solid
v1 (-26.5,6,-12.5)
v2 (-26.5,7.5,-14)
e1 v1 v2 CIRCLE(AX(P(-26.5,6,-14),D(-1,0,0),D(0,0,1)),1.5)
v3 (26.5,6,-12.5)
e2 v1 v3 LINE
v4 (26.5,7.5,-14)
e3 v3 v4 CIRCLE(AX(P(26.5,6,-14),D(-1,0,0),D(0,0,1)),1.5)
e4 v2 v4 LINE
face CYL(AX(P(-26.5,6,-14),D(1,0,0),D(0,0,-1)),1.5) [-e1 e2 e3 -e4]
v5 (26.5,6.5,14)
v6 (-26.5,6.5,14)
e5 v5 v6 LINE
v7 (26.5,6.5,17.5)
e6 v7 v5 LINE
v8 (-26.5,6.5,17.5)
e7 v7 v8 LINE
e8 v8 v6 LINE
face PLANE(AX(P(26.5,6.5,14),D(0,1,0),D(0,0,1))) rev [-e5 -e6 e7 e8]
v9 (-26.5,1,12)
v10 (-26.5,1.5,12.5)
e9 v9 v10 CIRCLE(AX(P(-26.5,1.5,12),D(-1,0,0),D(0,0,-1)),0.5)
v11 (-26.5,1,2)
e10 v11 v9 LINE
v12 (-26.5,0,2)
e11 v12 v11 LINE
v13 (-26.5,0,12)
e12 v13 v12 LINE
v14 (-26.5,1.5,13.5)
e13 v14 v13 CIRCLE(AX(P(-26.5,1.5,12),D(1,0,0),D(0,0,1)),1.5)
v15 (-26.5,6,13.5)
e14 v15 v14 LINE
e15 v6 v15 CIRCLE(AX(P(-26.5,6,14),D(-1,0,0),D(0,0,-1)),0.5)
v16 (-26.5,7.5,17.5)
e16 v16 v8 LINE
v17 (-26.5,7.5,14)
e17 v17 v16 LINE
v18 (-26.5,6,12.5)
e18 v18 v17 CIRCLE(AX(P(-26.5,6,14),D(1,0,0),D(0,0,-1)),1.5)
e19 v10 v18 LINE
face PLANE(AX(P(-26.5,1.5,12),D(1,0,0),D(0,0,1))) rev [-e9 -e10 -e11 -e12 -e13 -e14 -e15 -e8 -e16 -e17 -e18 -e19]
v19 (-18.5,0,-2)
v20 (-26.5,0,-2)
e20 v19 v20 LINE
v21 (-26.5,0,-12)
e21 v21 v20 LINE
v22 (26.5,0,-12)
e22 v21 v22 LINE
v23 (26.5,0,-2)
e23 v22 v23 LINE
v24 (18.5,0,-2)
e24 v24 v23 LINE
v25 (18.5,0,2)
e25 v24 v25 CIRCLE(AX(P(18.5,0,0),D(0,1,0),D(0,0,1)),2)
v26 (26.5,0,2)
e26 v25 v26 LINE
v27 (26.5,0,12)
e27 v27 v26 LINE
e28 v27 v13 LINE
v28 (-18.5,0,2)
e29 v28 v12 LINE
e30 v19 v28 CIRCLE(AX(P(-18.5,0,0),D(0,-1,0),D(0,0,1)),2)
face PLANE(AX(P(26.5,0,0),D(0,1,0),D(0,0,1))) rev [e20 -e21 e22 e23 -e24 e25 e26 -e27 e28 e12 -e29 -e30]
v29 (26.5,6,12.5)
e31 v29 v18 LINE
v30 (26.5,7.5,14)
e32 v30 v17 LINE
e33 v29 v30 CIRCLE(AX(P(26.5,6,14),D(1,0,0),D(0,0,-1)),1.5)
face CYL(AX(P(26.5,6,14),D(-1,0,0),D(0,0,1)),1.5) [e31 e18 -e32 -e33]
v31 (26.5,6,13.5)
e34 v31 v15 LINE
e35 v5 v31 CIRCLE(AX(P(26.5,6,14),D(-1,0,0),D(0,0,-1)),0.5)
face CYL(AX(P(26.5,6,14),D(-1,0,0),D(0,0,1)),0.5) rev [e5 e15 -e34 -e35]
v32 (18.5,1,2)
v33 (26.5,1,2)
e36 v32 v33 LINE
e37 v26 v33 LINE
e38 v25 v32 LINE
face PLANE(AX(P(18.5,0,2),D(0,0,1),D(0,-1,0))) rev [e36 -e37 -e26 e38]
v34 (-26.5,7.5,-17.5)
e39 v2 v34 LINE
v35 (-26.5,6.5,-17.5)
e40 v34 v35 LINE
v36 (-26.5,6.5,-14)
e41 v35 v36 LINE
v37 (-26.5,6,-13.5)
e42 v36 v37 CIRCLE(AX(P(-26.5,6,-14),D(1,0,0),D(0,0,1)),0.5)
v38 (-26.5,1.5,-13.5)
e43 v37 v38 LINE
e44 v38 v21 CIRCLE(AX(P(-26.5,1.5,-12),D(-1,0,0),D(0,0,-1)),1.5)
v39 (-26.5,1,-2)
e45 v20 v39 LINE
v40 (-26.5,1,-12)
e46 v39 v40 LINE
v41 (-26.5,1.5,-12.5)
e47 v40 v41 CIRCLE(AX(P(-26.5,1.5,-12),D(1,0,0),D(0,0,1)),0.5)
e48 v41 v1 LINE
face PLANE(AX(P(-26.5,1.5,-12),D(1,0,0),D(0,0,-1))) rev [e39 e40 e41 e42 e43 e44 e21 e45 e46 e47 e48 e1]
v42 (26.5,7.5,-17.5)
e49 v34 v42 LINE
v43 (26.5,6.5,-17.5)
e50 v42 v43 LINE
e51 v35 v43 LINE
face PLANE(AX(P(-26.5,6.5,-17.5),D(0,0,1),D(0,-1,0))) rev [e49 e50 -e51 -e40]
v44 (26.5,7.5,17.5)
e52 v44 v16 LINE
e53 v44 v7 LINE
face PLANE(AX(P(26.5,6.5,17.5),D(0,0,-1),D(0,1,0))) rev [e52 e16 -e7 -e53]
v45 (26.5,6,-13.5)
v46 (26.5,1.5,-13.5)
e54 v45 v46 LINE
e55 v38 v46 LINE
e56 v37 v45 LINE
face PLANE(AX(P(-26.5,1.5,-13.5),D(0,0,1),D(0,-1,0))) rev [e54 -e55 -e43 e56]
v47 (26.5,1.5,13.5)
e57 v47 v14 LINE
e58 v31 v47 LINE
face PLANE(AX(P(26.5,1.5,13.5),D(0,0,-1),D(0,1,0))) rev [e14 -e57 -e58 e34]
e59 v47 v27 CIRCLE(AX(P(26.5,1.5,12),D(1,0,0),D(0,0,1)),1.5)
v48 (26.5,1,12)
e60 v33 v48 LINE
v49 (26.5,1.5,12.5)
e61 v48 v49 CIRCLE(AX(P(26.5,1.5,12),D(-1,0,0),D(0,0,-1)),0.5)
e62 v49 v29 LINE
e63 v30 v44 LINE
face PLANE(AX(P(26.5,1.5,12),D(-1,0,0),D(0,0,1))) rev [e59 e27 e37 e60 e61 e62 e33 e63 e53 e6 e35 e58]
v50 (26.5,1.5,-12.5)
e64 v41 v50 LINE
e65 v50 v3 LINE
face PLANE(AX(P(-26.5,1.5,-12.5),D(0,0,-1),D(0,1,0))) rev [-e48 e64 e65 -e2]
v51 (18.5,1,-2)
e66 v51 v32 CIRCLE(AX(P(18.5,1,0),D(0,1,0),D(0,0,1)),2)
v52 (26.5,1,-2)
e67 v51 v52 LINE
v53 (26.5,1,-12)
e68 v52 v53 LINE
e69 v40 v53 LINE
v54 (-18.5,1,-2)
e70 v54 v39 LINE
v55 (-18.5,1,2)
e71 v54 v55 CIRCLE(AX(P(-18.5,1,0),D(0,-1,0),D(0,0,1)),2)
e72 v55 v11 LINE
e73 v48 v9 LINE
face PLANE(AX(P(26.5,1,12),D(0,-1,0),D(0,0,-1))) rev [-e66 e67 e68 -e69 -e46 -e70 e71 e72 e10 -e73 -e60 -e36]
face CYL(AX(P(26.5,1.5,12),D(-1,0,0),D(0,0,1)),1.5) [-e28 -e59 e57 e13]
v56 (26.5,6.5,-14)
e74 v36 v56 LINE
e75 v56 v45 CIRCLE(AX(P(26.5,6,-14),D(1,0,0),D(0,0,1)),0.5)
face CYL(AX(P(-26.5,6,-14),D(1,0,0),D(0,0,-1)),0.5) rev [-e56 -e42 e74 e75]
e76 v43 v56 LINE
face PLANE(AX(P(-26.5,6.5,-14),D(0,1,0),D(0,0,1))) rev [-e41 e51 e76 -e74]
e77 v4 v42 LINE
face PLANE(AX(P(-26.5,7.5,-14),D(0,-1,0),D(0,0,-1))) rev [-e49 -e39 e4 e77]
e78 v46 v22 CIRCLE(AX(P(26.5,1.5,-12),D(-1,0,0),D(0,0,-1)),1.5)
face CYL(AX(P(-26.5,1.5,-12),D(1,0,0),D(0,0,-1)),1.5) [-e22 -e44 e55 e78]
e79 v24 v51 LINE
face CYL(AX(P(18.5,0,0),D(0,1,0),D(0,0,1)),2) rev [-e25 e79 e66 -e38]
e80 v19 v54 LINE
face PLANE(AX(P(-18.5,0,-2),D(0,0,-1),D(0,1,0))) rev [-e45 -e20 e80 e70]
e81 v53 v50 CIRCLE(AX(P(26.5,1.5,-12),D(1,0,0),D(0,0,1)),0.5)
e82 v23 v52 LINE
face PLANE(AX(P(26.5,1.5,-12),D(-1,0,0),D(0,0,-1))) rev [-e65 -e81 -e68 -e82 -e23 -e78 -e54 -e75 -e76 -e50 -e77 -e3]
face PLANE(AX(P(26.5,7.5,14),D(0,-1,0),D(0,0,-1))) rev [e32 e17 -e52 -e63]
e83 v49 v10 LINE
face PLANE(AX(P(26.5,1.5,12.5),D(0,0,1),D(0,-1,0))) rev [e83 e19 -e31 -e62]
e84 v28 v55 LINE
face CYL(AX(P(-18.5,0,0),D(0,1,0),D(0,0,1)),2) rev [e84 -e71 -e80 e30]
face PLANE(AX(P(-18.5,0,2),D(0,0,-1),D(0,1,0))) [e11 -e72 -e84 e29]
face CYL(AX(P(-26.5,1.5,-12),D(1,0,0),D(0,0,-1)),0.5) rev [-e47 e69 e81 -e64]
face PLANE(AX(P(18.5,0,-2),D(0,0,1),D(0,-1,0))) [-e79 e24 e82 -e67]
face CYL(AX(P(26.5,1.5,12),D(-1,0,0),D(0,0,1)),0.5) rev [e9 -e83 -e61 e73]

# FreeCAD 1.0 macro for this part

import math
import FreeCAD as App
import Part
import Sketcher
from FreeCAD import Vector
Q = App.Units.Quantity

doc = App.newDocument("Part")
body = doc.addObject("PartDesign::Body", "Body")

sketch1 = body.newObject("Sketcher::SketchObject", "Sketch")
sketch1.AttachmentSupport = (doc.getObject("YZ_Plane"), [""])
sketch1.MapMode = "FlatFace"
sketch1.addGeometry([
    Part.LineSegment(Vector(0, 12, 0), Vector(0, 0, 0)),
    Part.LineSegment(Vector(0, 0, 0), Vector(1, 0, 0)),
    Part.LineSegment(Vector(1, 0, 0), Vector(1, 12, 0)),
    Part.ArcOfCircle(Part.Circle(Vector(1.5, 12, 0), Vector(0, 0, 1), 0.5), math.radians(90), math.radians(180)),
    Part.LineSegment(Vector(1.5, 12.5, 0), Vector(6, 12.5, 0)),
    Part.ArcOfCircle(Part.Circle(Vector(6, 14, 0), Vector(0, 0, 1), 1.5), math.radians(-90), math.radians(0)),
    Part.LineSegment(Vector(7.5, 14, 0), Vector(7.5, 17.5, 0)),
    Part.LineSegment(Vector(7.5, 17.5, 0), Vector(6.5, 17.5, 0)),
    Part.LineSegment(Vector(6.5, 17.5, 0), Vector(6.5, 14, 0)),
    Part.ArcOfCircle(Part.Circle(Vector(6, 14, 0), Vector(0, 0, 1), 0.5), math.radians(-90), math.radians(0)),
    Part.LineSegment(Vector(6, 13.5, 0), Vector(1.5, 13.5, 0)),
    Part.ArcOfCircle(Part.Circle(Vector(1.5, 12, 0), Vector(0, 0, 1), 1.5), math.radians(90), math.radians(180)),
], False)
sketch1.addConstraint([
    Sketcher.Constraint("Coincident", 0, 2, 1, 1),
    Sketcher.Constraint("Coincident", 1, 2, 2, 1),
    Sketcher.Constraint("Tangent", 2, 2, 3, 2),
    Sketcher.Constraint("Tangent", 3, 1, 4, 1),
    Sketcher.Constraint("Tangent", 4, 2, 5, 1),
    Sketcher.Constraint("Tangent", 5, 2, 6, 1),
    Sketcher.Constraint("Coincident", 6, 2, 7, 1),
    Sketcher.Constraint("Coincident", 7, 2, 8, 1),
    Sketcher.Constraint("Tangent", 8, 2, 9, 2),
    Sketcher.Constraint("Tangent", 9, 1, 10, 1),
    Sketcher.Constraint("Tangent", 10, 2, 11, 1),
    Sketcher.Constraint("Tangent", 11, 2, 0, 1),
    Sketcher.Constraint("Vertical", 0),
    Sketcher.Constraint("Horizontal", 1),
    Sketcher.Constraint("Vertical", 2),
    Sketcher.Constraint("Horizontal", 4),
    Sketcher.Constraint("Vertical", 6),
    Sketcher.Constraint("Horizontal", 7),
    Sketcher.Constraint("Vertical", 8),
    Sketcher.Constraint("Horizontal", 10),
    Sketcher.Constraint("Coincident", 0, 2, -1, 1),
    Sketcher.Constraint("Coincident", 9, 3, 5, 3),
    Sketcher.Constraint("Coincident", 11, 3, 3, 3),
    Sketcher.Constraint("Equal", 3, 9),
    Sketcher.Constraint("Radius", 3, Q("0.5 mm")),
    Sketcher.Constraint("Radius", 5, Q("1.5 mm")),
    Sketcher.Constraint("DistanceY", 0, 2, 0, 1, Q("12 mm")),
    Sketcher.Constraint("DistanceX", 4, 1, 4, 2, Q("4.5 mm")),
    Sketcher.Constraint("DistanceY", 6, 1, 6, 2, Q("3.5 mm")),
])
pad1 = body.newObject("PartDesign::Pad", "Pad")
pad1.Profile = sketch1
pad1.Length = 26.5

sketch2 = body.newObject("Sketcher::SketchObject", "Sketch001")
sketch2.AttachmentSupport = (doc.getObject("XZ_Plane"), [""])
sketch2.MapMode = "FlatFace"
sketch2.AttachmentOffset = App.Placement(Vector(0, 0, -1), App.Rotation())
sketch2.addGeometry([
    Part.LineSegment(Vector(26.5, 0, 0), Vector(16.5, 0, 0)),
    Part.ArcOfCircle(Part.Circle(Vector(18.5, 0, 0), Vector(0, 0, 1), 2), math.radians(90), math.radians(180)),
    Part.LineSegment(Vector(18.5, 2, 0), Vector(26.5, 2, 0)),
    Part.LineSegment(Vector(26.5, 2, 0), Vector(26.5, 0, 0)),
], False)
sketch2.addConstraint([
    Sketcher.Constraint("Coincident", 0, 2, 1, 2),
    Sketcher.Constraint("Tangent", 1, 1, 2, 1),
    Sketcher.Constraint("Coincident", 2, 2, 3, 1),
    Sketcher.Constraint("Coincident", 3, 2, 0, 1),
    Sketcher.Constraint("Horizontal", 0),
    Sketcher.Constraint("Horizontal", 2),
    Sketcher.Constraint("Vertical", 3),
    Sketcher.Constraint("PointOnObject", 1, 3, -1),
    Sketcher.Constraint("PointOnObject", 0, 2, -1),
    Sketcher.Constraint("Radius", 1, Q("2 mm")),
    Sketcher.Constraint("DistanceX", 0, 2, 0, 1, Q("10 mm")),
    Sketcher.Constraint("DistanceX", -1, 1, 1, 3, Q("18.5 mm")),
])
pocket1 = body.newObject("PartDesign::Pocket", "Pocket")
pocket1.Profile = sketch2
pocket1.Type = "ThroughAll"
pocket1.Reversed = True
doc.recompute()

mirrored = body.newObject("PartDesign::Mirrored", "Mirrored")
mirrored.Originals = [pad1, pocket1]
mirrored.MirrorPlane = (doc.getObject("YZ_Plane"), [""])
body.Tip = mirrored
doc.recompute()

mirrored2 = body.newObject("PartDesign::Mirrored", "Mirrored001")
mirrored2.Originals = [pad1, pocket1]
mirrored2.MirrorPlane = (doc.getObject("XY_Plane"), [""])
body.Tip = mirrored2

sketch3 = body.newObject("Sketcher::SketchObject", "Sketch002")
sketch3.AttachmentSupport = (doc.getObject("YZ_Plane"), [""])
sketch3.MapMode = "FlatFace"
sketch3.addGeometry([
    Part.LineSegment(Vector(0, -12, 0), Vector(0, 0, 0)),
    Part.LineSegment(Vector(0, 0, 0), Vector(1, 0, 0)),
    Part.LineSegment(Vector(1, 0, 0), Vector(1, -12, 0)),
    Part.ArcOfCircle(Part.Circle(Vector(1.5, -12, 0), Vector(0, 0, 1), 0.5), math.radians(180), math.radians(270)),
    Part.LineSegment(Vector(1.5, -12.5, 0), Vector(6, -12.5, 0)),
    Part.ArcOfCircle(Part.Circle(Vector(6, -14, 0), Vector(0, 0, 1), 1.5), math.radians(0), math.radians(90)),
    Part.LineSegment(Vector(7.5, -14, 0), Vector(7.5, -17.5, 0)),
    Part.LineSegment(Vector(7.5, -17.5, 0), Vector(6.5, -17.5, 0)),
    Part.LineSegment(Vector(6.5, -17.5, 0), Vector(6.5, -14, 0)),
    Part.ArcOfCircle(Part.Circle(Vector(6, -14, 0), Vector(0, 0, 1), 0.5), math.radians(0), math.radians(90)),
    Part.LineSegment(Vector(6, -13.5, 0), Vector(1.5, -13.5, 0)),
    Part.ArcOfCircle(Part.Circle(Vector(1.5, -12, 0), Vector(0, 0, 1), 1.5), math.radians(180), math.radians(270)),
], False)
sketch3.addConstraint([
    Sketcher.Constraint("Coincident", 0, 2, 1, 1),
    Sketcher.Constraint("Coincident", 1, 2, 2, 1),
    Sketcher.Constraint("Tangent", 2, 2, 3, 1),
    Sketcher.Constraint("Tangent", 3, 2, 4, 1),
    Sketcher.Constraint("Tangent", 4, 2, 5, 2),
    Sketcher.Constraint("Tangent", 5, 1, 6, 1),
    Sketcher.Constraint("Coincident", 6, 2, 7, 1),
    Sketcher.Constraint("Coincident", 7, 2, 8, 1),
    Sketcher.Constraint("Tangent", 8, 2, 9, 1),
    Sketcher.Constraint("Tangent", 9, 2, 10, 1),
    Sketcher.Constraint("Tangent", 10, 2, 11, 2),
    Sketcher.Constraint("Tangent", 11, 1, 0, 1),
    Sketcher.Constraint("Vertical", 0),
    Sketcher.Constraint("Horizontal", 1),
    Sketcher.Constraint("Vertical", 2),
    Sketcher.Constraint("Horizontal", 4),
    Sketcher.Constraint("Vertical", 6),
    Sketcher.Constraint("Horizontal", 7),
    Sketcher.Constraint("Vertical", 8),
    Sketcher.Constraint("Horizontal", 10),
    Sketcher.Constraint("Coincident", 0, 2, -1, 1),
    Sketcher.Constraint("Coincident", 9, 3, 5, 3),
    Sketcher.Constraint("Coincident", 11, 3, 3, 3),
    Sketcher.Constraint("Equal", 3, 9),
    Sketcher.Constraint("Radius", 3, Q("0.5 mm")),
    Sketcher.Constraint("Radius", 5, Q("1.5 mm")),
    Sketcher.Constraint("DistanceY", 0, 1, 0, 2, Q("12 mm")),
    Sketcher.Constraint("DistanceX", 4, 1, 4, 2, Q("4.5 mm")),
    Sketcher.Constraint("DistanceY", 6, 2, 6, 1, Q("3.5 mm")),
])
pad2 = body.newObject("PartDesign::Pad", "Pad001")
pad2.Profile = sketch3
pad2.Length = 26.5
pad2.Reversed = True

sketch4 = body.newObject("Sketcher::SketchObject", "Sketch003")
sketch4.AttachmentSupport = (doc.getObject("XZ_Plane"), [""])
sketch4.MapMode = "FlatFace"
sketch4.AttachmentOffset = App.Placement(Vector(0, 0, -1), App.Rotation())
sketch4.addGeometry([
    Part.LineSegment(Vector(-26.5, 0, 0), Vector(-16.5, 0, 0)),
    Part.ArcOfCircle(Part.Circle(Vector(-18.5, 0, 0), Vector(0, 0, 1), 2), math.radians(-90), math.radians(0)),
    Part.LineSegment(Vector(-18.5, -2, 0), Vector(-26.5, -2, 0)),
    Part.LineSegment(Vector(-26.5, -2, 0), Vector(-26.5, 0, 0)),
], False)
sketch4.addConstraint([
    Sketcher.Constraint("Coincident", 0, 2, 1, 2),
    Sketcher.Constraint("Tangent", 1, 1, 2, 1),
    Sketcher.Constraint("Coincident", 2, 2, 3, 1),
    Sketcher.Constraint("Coincident", 3, 2, 0, 1),
    Sketcher.Constraint("Horizontal", 0),
    Sketcher.Constraint("Horizontal", 2),
    Sketcher.Constraint("Vertical", 3),
    Sketcher.Constraint("PointOnObject", 1, 3, -1),
    Sketcher.Constraint("PointOnObject", 0, 2, -1),
    Sketcher.Constraint("Radius", 1, Q("2 mm")),
    Sketcher.Constraint("DistanceX", 0, 1, 0, 2, Q("10 mm")),
    Sketcher.Constraint("DistanceX", 1, 3, -1, 1, Q("18.5 mm")),
])
pocket2 = body.newObject("PartDesign::Pocket", "Pocket001")
pocket2.Profile = sketch4
pocket2.Type = "ThroughAll"
pocket2.Reversed = True

doc.recompute()
